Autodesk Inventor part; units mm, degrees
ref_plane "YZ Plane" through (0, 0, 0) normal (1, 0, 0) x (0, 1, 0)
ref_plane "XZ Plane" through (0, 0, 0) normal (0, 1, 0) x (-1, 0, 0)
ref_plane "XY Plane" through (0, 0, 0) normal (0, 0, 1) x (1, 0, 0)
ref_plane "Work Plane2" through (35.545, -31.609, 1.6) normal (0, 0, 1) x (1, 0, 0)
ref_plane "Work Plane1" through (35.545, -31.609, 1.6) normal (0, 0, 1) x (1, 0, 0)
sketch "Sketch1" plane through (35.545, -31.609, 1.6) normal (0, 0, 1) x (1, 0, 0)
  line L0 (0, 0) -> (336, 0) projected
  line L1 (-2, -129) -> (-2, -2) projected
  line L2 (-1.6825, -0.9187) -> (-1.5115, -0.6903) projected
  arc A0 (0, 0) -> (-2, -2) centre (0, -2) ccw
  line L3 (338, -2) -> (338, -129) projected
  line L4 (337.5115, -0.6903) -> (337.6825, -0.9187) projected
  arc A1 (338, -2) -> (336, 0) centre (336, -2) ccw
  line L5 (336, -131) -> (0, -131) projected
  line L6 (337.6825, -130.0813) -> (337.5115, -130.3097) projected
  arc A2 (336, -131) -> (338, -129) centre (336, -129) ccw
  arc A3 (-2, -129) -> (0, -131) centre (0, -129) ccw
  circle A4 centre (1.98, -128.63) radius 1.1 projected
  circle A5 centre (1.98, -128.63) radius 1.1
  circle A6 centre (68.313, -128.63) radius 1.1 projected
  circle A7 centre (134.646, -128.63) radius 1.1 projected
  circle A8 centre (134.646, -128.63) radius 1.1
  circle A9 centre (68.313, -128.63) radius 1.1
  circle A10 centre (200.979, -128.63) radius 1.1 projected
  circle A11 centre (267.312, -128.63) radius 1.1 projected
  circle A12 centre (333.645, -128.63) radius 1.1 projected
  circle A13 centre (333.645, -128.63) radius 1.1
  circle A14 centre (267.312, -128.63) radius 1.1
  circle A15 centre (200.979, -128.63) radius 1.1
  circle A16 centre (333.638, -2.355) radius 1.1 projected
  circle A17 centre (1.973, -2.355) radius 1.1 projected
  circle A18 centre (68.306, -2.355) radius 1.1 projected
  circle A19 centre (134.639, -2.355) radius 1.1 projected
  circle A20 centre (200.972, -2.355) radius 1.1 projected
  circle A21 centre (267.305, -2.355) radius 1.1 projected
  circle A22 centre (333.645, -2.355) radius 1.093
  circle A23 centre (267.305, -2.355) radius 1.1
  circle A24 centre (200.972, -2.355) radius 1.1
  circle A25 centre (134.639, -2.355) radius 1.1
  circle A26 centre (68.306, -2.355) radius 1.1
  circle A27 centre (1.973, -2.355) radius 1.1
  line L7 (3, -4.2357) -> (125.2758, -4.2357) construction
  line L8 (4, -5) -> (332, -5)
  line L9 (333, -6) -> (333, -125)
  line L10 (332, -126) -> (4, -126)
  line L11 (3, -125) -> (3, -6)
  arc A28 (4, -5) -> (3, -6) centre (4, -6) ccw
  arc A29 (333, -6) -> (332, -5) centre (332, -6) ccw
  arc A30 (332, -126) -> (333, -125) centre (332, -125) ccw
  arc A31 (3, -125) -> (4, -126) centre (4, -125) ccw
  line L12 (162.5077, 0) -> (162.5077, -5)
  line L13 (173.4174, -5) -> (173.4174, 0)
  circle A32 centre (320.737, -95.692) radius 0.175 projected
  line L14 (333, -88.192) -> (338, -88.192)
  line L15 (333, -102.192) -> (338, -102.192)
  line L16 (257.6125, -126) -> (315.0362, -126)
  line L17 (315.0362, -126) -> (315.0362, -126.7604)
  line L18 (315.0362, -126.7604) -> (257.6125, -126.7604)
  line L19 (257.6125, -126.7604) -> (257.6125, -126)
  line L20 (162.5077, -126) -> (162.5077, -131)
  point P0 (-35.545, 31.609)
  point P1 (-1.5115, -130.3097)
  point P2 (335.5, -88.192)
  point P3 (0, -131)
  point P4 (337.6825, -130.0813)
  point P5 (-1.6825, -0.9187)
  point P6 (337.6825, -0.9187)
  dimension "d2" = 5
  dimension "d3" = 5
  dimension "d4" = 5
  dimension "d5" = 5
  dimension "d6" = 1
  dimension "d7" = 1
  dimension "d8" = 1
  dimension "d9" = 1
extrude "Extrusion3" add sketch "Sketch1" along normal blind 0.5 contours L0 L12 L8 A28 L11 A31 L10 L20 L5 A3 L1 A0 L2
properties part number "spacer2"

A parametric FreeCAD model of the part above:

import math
import FreeCAD as App
import Part
import Sketcher
Q = App.Units.Quantity

doc = App.newDocument("Part")
body = doc.addObject("PartDesign::Body", "Body")

sketch1 = body.newObject("Sketcher::SketchObject", "Sketch")
sketch1.AttachmentSupport = (doc.getObject("XY_Plane"), [""])
sketch1.MapMode = "FlatFace"
sketch1.AttachmentOffset = App.Placement(App.Vector(0, 0, 1.6), App.Rotation())
sketch1.addGeometry([
    Part.LineSegment(App.Vector(198.05, -31.61, 0), App.Vector(35.55, -31.61, 0)),
    Part.ArcOfCircle(Part.Circle(App.Vector(35.55, -33.61, 0), App.Vector(0, 0, 1), 2), math.radians(90), math.radians(139)),
    Part.LineSegment(App.Vector(34.03, -32.3, 0), App.Vector(33.86, -32.53, 0)),
    Part.ArcOfCircle(Part.Circle(App.Vector(35.55, -33.61, 0), App.Vector(0, 0, 1), 2), math.radians(147), math.radians(180)),
    Part.LineSegment(App.Vector(33.55, -33.61, 0), App.Vector(33.55, -160.61, 0)),
    Part.ArcOfCircle(Part.Circle(App.Vector(35.55, -160.61, 0), App.Vector(0, 0, 1), 2), math.radians(180), math.radians(270)),
    Part.LineSegment(App.Vector(35.55, -162.61, 0), App.Vector(198.05, -162.61, 0)),
    Part.LineSegment(App.Vector(198.05, -162.61, 0), App.Vector(198.05, -157.61, 0)),
    Part.LineSegment(App.Vector(198.05, -157.61, 0), App.Vector(39.55, -157.61, 0)),
    Part.ArcOfCircle(Part.Circle(App.Vector(39.55, -156.61, 0), App.Vector(0, 0, 1), 1), math.radians(180), math.radians(270)),
    Part.LineSegment(App.Vector(38.55, -156.61, 0), App.Vector(38.55, -37.61, 0)),
    Part.ArcOfCircle(Part.Circle(App.Vector(39.55, -37.61, 0), App.Vector(0, 0, 1), 1), math.radians(90), math.radians(180)),
    Part.LineSegment(App.Vector(39.55, -36.61, 0), App.Vector(198.05, -36.61, 0)),
    Part.LineSegment(App.Vector(198.05, -36.61, 0), App.Vector(198.05, -31.61, 0)),
    Part.Circle(App.Vector(37.52, -160.24, 0), App.Vector(0, 0, 1), 1.1),
    Part.Circle(App.Vector(103.86, -160.24, 0), App.Vector(0, 0, 1), 1.1),
    Part.Circle(App.Vector(170.19, -160.24, 0), App.Vector(0, 0, 1), 1.1),
    Part.Circle(App.Vector(37.52, -33.96, 0), App.Vector(0, 0, 1), 1.1),
    Part.Circle(App.Vector(103.85, -33.96, 0), App.Vector(0, 0, 1), 1.1),
    Part.Circle(App.Vector(170.18, -33.96, 0), App.Vector(0, 0, 1), 1.1),
], False)
sketch1.addConstraint([
    Sketcher.Constraint("Tangent", 0, 2, 1, 1),
    Sketcher.Constraint("Coincident", 1, 2, 2, 1),
    Sketcher.Constraint("Coincident", 2, 2, 3, 1),
    Sketcher.Constraint("Tangent", 3, 2, 4, 1),
    Sketcher.Constraint("Tangent", 4, 2, 5, 1),
    Sketcher.Constraint("Tangent", 5, 2, 6, 1),
    Sketcher.Constraint("Coincident", 6, 2, 7, 1),
    Sketcher.Constraint("Coincident", 7, 2, 8, 1),
    Sketcher.Constraint("Tangent", 8, 2, 9, 2),
    Sketcher.Constraint("Tangent", 9, 1, 10, 1),
    Sketcher.Constraint("Tangent", 10, 2, 11, 2),
    Sketcher.Constraint("Tangent", 11, 1, 12, 1),
    Sketcher.Constraint("Coincident", 12, 2, 13, 1),
    Sketcher.Constraint("Coincident", 13, 2, 0, 1),
    Sketcher.Constraint("Horizontal", 0),
    Sketcher.Constraint("Vertical", 4),
    Sketcher.Constraint("Horizontal", 6),
    Sketcher.Constraint("Vertical", 7),
    Sketcher.Constraint("Horizontal", 8),
    Sketcher.Constraint("Vertical", 10),
    Sketcher.Constraint("Horizontal", 12),
    Sketcher.Constraint("Vertical", 13),
    Sketcher.Constraint("Coincident", 3, 3, 1, 3),
    Sketcher.Constraint("Equal", 1, 3),
    Sketcher.Constraint("Equal", 3, 5),
    Sketcher.Constraint("Equal", 9, 11),
    Sketcher.Constraint("Equal", 14, 15),
    Sketcher.Constraint("Equal", 15, 16),
    Sketcher.Constraint("Equal", 16, 17),
    Sketcher.Constraint("Equal", 17, 18),
    Sketcher.Constraint("Equal", 18, 19),
    Sketcher.Constraint("Horizontal", 14, 3, 15, 3),
    Sketcher.Constraint("Horizontal", 15, 3, 16, 3),
    Sketcher.Constraint("Horizontal", 17, 3, 18, 3),
    Sketcher.Constraint("Horizontal", 18, 3, 19, 3),
    Sketcher.Constraint("Vertical", 7, 2, 12, 2),
    Sketcher.Constraint("Equal", 7, 13),
    Sketcher.Constraint("Radius", 9, Q("1 mm")),
    Sketcher.Constraint("DistanceY", 7, 1, 7, 2, Q("5 mm")),
    Sketcher.Constraint("Radius", 1, Q("2 mm")),
    Sketcher.Constraint("DistanceX", 4, 2, 9, 1, Q("5 mm")),
    Sketcher.Constraint("Diameter", 14, Q("2.2 mm")),
    Sketcher.Constraint("DistanceY", 4, 2, 4, 1, Q("127 mm")),
    Sketcher.Constraint("DistanceX", 5, 3, 14, 3, Q("1.98 mm")),
    Sketcher.Constraint("DistanceY", 5, 3, 14, 3, Q("0.37 mm")),
    Sketcher.Constraint("DistanceX", 0, 2, 0, 1, Q("162.5077 mm")),
    Sketcher.Constraint("DistanceX", -1, 1, 1, 3, Q("35.545 mm")),
    Sketcher.Constraint("DistanceY", 1, 3, -1, 1, Q("33.609 mm")),
    Sketcher.Constraint("DistanceX", -1, 1, 15, 3, Q("103.858 mm")),
    Sketcher.Constraint("DistanceX", -1, 1, 16, 3, Q("170.191 mm")),
    Sketcher.Constraint("DistanceX", -1, 1, 17, 3, Q("37.518 mm")),
    Sketcher.Constraint("DistanceY", 17, 3, -1, 1, Q("33.964 mm")),
    Sketcher.Constraint("DistanceX", -1, 1, 18, 3, Q("103.851 mm")),
    Sketcher.Constraint("DistanceX", -1, 1, 19, 3, Q("170.184 mm")),
    Sketcher.Constraint("DistanceX", 2, 2, 1, 2, Q("0.171 mm")),
    Sketcher.Constraint("Distance", 2, Q("0.2853 mm")),
])
pad1 = body.newObject("PartDesign::Pad", "Pad")
pad1.Profile = sketch1
pad1.Length = 0.5

doc.recompute()
